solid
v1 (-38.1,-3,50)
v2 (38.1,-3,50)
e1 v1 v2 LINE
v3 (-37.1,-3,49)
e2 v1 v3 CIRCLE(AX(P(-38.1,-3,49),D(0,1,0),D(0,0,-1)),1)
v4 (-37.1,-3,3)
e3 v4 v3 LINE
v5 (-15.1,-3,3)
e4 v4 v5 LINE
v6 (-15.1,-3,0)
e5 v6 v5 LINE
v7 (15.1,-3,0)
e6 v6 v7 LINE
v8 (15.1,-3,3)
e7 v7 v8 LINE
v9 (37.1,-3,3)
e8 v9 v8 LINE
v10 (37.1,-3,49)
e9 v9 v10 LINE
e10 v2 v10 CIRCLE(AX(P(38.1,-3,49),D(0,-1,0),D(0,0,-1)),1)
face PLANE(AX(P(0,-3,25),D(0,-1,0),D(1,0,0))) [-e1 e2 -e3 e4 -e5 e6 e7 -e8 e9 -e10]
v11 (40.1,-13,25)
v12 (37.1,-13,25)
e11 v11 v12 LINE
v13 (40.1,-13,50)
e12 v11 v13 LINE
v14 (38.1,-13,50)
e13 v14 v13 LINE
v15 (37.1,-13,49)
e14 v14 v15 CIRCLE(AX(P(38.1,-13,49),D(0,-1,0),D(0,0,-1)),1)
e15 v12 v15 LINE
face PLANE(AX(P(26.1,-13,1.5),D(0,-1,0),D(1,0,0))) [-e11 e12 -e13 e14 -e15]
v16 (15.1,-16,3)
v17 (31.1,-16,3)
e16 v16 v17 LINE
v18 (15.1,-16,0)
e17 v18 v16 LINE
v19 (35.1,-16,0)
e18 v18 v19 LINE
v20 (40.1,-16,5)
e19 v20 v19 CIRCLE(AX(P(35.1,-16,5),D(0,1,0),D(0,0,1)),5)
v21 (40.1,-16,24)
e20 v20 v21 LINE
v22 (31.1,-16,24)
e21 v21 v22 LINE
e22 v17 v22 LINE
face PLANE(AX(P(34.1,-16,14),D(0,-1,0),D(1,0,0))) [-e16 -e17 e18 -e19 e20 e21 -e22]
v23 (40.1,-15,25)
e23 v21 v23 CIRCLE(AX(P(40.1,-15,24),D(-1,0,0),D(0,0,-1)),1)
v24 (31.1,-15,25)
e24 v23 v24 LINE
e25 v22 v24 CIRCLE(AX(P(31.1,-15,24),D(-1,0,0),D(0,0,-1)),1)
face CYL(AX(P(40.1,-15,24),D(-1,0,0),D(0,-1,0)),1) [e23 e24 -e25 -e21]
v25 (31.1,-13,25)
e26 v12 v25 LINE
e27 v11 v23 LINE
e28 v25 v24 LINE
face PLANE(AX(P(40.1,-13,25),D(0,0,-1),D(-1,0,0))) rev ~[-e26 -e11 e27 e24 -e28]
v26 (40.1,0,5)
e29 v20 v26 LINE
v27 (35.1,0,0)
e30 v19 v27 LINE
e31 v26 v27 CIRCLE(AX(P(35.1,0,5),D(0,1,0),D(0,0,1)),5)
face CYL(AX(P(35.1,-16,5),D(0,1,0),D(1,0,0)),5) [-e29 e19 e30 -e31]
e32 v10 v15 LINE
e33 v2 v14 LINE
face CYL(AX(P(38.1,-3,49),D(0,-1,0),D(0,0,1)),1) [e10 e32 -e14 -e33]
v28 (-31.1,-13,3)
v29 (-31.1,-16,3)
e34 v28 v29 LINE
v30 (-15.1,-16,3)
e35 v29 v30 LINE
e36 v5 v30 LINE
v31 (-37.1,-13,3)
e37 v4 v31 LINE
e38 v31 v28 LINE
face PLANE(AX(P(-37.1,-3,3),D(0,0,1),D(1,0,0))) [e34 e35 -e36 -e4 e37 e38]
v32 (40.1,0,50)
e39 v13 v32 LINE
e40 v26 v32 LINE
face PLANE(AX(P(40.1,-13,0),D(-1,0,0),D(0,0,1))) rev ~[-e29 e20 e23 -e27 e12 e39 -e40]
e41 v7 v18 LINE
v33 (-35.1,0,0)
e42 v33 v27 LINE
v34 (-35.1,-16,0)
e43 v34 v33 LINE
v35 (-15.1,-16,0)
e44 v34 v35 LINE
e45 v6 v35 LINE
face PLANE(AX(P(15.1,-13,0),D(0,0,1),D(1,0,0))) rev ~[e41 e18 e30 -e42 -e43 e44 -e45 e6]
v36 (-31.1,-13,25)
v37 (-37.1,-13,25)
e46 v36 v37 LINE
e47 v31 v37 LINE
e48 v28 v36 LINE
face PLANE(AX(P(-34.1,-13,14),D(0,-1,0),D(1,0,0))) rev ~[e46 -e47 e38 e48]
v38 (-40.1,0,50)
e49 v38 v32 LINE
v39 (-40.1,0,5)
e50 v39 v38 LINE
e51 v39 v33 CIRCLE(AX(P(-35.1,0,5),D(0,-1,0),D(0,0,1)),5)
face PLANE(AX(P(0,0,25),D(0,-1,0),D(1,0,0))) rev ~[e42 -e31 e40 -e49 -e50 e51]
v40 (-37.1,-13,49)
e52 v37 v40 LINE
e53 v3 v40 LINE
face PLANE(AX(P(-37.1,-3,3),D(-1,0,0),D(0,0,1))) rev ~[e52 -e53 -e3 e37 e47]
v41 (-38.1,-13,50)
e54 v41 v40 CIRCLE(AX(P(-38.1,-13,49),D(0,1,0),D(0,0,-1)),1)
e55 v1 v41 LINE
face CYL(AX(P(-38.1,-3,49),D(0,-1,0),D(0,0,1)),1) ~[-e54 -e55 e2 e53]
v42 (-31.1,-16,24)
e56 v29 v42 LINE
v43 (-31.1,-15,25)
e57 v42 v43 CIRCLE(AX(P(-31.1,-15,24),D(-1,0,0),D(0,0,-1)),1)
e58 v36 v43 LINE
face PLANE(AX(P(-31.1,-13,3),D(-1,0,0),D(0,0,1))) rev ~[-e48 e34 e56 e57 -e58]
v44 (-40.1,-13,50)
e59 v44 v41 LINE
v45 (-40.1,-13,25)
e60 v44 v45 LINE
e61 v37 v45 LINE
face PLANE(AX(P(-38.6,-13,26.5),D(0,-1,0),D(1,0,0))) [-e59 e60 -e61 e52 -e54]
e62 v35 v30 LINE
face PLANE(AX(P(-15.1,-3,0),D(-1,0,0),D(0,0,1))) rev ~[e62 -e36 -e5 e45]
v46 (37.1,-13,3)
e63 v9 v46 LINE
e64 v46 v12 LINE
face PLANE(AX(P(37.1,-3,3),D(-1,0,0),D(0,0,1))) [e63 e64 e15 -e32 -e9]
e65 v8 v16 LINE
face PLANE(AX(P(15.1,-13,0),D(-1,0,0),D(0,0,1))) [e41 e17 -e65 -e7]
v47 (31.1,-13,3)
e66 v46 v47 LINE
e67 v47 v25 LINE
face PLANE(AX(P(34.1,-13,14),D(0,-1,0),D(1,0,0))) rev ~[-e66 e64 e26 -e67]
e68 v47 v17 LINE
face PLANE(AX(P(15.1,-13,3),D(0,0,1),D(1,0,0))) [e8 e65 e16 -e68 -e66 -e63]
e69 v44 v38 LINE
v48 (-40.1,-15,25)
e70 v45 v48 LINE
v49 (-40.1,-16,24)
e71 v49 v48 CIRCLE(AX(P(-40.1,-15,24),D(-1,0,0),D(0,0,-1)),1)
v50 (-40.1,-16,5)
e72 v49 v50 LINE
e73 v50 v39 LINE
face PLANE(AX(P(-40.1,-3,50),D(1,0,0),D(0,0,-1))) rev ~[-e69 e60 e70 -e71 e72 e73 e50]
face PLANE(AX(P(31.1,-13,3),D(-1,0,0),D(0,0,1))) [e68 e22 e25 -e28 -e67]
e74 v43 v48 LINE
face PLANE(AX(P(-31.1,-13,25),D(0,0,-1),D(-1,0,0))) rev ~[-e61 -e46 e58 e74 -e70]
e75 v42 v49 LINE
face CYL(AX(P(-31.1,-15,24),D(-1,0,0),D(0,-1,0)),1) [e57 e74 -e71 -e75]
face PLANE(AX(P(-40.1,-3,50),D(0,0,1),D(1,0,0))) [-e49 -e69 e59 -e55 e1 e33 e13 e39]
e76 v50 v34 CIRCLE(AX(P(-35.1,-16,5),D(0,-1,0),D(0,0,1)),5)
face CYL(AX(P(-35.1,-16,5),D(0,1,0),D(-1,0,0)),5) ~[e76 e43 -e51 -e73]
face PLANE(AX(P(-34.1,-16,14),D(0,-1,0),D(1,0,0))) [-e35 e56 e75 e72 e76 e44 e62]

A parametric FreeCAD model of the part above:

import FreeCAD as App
import Part
import Sketcher
from FreeCAD import Vector
Q = App.Units.Quantity


def edges_at(feature, points):
    """Names of the edges that pass closest to the given points."""
    edges = feature.Shape.Edges
    near = lambda p: min(range(len(edges)), key=lambda i: edges[i].distToShape(Part.Vertex(*p))[0])
    return sorted({f"Edge{near(p) + 1}" for p in points})


def add_polygon(sketch, points):
    """Adds a closed chain of lines whose ends are joined by coincident constraints."""
    first, n = sketch.GeometryCount, len(points)
    for a, b in zip(points, points[1:] + points[:1]):
        sketch.addGeometry(Part.LineSegment(App.Vector(*a, 0), App.Vector(*b, 0)), False)
    for i in range(n):
        sketch.addConstraint(Sketcher.Constraint("Coincident", first + i, 2, first + (i + 1) % n, 1))

doc = App.newDocument("Part")
body = doc.addObject("PartDesign::Body", "Body")

sketch1 = body.newObject("Sketcher::SketchObject", "Sketch")
sketch1.AttachmentSupport = (doc.getObject("XZ_Plane"), [""])
sketch1.MapMode = "FlatFace"
add_polygon(sketch1, [(-40.1, 50), (-40.1, 0), (40.1, 0), (40.1, 50)])
sketch1.addConstraint(Sketcher.Constraint("Vertical", 0))
sketch1.addConstraint(Sketcher.Constraint("Horizontal", 1))
sketch1.addConstraint(Sketcher.Constraint("Vertical", 2))
sketch1.addConstraint(Sketcher.Constraint("Horizontal", 3))
sketch1.addConstraint(Sketcher.Constraint("Symmetric", 0, 2, 1, 2, -1, 1))
sketch1.addConstraint(Sketcher.Constraint("DistanceY", 0, 2, 0, 1, Q("50 mm")))
sketch1.addConstraint(Sketcher.Constraint("DistanceX", 1, 1, 1, 2, Q("80.2 mm")))
pad1 = body.newObject("PartDesign::Pad", "Pad")
pad1.Profile = sketch1
pad1.Length = 3

sketch2 = body.newObject("Sketcher::SketchObject", "Sketch001")
sketch2.AttachmentSupport = (doc.getObject("XZ_Plane"), [""])
sketch2.MapMode = "FlatFace"
sketch2.AttachmentOffset = App.Placement(Vector(0, 0, 3), App.Rotation())
add_polygon(sketch2, [(-40.1, 50), (-40.1, 0), (-15.1, 0), (-15.1, 3), (-37.1, 3), (-37.1, 50)])
add_polygon(sketch2, [(15.1, 3), (15.1, 0), (40.1, 0), (40.1, 50), (37.1, 50), (37.1, 3)])
sketch2.addConstraint(Sketcher.Constraint("Vertical", 0))
sketch2.addConstraint(Sketcher.Constraint("Horizontal", 1))
sketch2.addConstraint(Sketcher.Constraint("Vertical", 2))
sketch2.addConstraint(Sketcher.Constraint("Horizontal", 3))
sketch2.addConstraint(Sketcher.Constraint("Vertical", 4))
sketch2.addConstraint(Sketcher.Constraint("Horizontal", 5))
sketch2.addConstraint(Sketcher.Constraint("Vertical", 6))
sketch2.addConstraint(Sketcher.Constraint("Horizontal", 7))
sketch2.addConstraint(Sketcher.Constraint("Vertical", 8))
sketch2.addConstraint(Sketcher.Constraint("Horizontal", 9))
sketch2.addConstraint(Sketcher.Constraint("Vertical", 10))
sketch2.addConstraint(Sketcher.Constraint("Horizontal", 11))
sketch2.addConstraint(Sketcher.Constraint("Symmetric", 1, 2, 6, 2, -1, 1))
sketch2.addConstraint(Sketcher.Constraint("Symmetric", 0, 2, 7, 2, -2))
sketch2.addConstraint(Sketcher.Constraint("Symmetric", 4, 2, 9, 2, -2))
sketch2.addConstraint(Sketcher.Constraint("Horizontal", 3, 2, 10, 2))
sketch2.addConstraint(Sketcher.Constraint("Equal", 9, 2))
sketch2.addConstraint(Sketcher.Constraint("DistanceX", 1, 1, 1, 2, Q("25 mm")))
sketch2.addConstraint(Sketcher.Constraint("DistanceX", 3, 2, 3, 1, Q("22 mm")))
sketch2.addConstraint(Sketcher.Constraint("DistanceY", 0, 2, 0, 1, Q("50 mm")))
sketch2.addConstraint(Sketcher.Constraint("DistanceX", 0, 2, -1, 1, Q("40.1 mm")))
pad2 = body.newObject("PartDesign::Pad", "Pad001")
pad2.Profile = sketch2
pad2.Length = 10

sketch3 = body.newObject("Sketcher::SketchObject", "Sketch002")
sketch3.AttachmentSupport = (doc.getObject("XZ_Plane"), [""])
sketch3.MapMode = "FlatFace"
sketch3.AttachmentOffset = App.Placement(Vector(0, 0, 13), App.Rotation())
add_polygon(sketch3, [(31.1, 25), (31.1, 3), (15.1, 3), (15.1, 0), (40.1, 0), (40.1, 25)])
add_polygon(sketch3, [(-31.1, 25), (-40.1, 25), (-40.1, 0), (-15.1, 0), (-15.1, 3), (-31.1, 3)])
sketch3.addConstraint(Sketcher.Constraint("Vertical", 0))
sketch3.addConstraint(Sketcher.Constraint("Horizontal", 1))
sketch3.addConstraint(Sketcher.Constraint("Vertical", 2))
sketch3.addConstraint(Sketcher.Constraint("Horizontal", 3))
sketch3.addConstraint(Sketcher.Constraint("Vertical", 4))
sketch3.addConstraint(Sketcher.Constraint("Horizontal", 5))
sketch3.addConstraint(Sketcher.Constraint("Horizontal", 6))
sketch3.addConstraint(Sketcher.Constraint("Vertical", 7))
sketch3.addConstraint(Sketcher.Constraint("Horizontal", 8))
sketch3.addConstraint(Sketcher.Constraint("Vertical", 9))
sketch3.addConstraint(Sketcher.Constraint("Horizontal", 10))
sketch3.addConstraint(Sketcher.Constraint("Vertical", 11))
sketch3.addConstraint(Sketcher.Constraint("Symmetric", 3, 2, 7, 2, -1, 1))
sketch3.addConstraint(Sketcher.Constraint("Symmetric", 2, 2, 8, 2, -2))
sketch3.addConstraint(Sketcher.Constraint("Symmetric", 0, 2, 10, 2, -2))
sketch3.addConstraint(Sketcher.Constraint("Horizontal", 5, 2, 6, 2))
sketch3.addConstraint(Sketcher.Constraint("Equal", 8, 4))
sketch3.addConstraint(Sketcher.Constraint("DistanceX", 1, 2, 1, 1, Q("16 mm")))
sketch3.addConstraint(Sketcher.Constraint("DistanceX", 3, 1, 3, 2, Q("25 mm")))
sketch3.addConstraint(Sketcher.Constraint("DistanceY", 0, 2, 0, 1, Q("22 mm")))
sketch3.addConstraint(Sketcher.Constraint("DistanceX", -1, 1, 0, 2, Q("31.1 mm")))
pad3 = body.newObject("PartDesign::Pad", "Pad002")
pad3.Profile = sketch3
pad3.Length = 3
doc.recompute()

fillet = body.newObject("PartDesign::Fillet", "Fillet")
fillet.Base = (pad3, edges_at(pad3, [(40.1, -8, 0), (-40.1, -8, 0)]))
fillet.Radius = 5
doc.recompute()

fillet2 = body.newObject("PartDesign::Fillet", "Fillet001")
fillet2.Base = (fillet, edges_at(fillet, [
    (-35.6, -16, 25),
    (35.6, -16, 25),
    (-37.1, -8, 50),
    (37.1, -8, 50),
]))
fillet2.Radius = 1

doc.recompute()
